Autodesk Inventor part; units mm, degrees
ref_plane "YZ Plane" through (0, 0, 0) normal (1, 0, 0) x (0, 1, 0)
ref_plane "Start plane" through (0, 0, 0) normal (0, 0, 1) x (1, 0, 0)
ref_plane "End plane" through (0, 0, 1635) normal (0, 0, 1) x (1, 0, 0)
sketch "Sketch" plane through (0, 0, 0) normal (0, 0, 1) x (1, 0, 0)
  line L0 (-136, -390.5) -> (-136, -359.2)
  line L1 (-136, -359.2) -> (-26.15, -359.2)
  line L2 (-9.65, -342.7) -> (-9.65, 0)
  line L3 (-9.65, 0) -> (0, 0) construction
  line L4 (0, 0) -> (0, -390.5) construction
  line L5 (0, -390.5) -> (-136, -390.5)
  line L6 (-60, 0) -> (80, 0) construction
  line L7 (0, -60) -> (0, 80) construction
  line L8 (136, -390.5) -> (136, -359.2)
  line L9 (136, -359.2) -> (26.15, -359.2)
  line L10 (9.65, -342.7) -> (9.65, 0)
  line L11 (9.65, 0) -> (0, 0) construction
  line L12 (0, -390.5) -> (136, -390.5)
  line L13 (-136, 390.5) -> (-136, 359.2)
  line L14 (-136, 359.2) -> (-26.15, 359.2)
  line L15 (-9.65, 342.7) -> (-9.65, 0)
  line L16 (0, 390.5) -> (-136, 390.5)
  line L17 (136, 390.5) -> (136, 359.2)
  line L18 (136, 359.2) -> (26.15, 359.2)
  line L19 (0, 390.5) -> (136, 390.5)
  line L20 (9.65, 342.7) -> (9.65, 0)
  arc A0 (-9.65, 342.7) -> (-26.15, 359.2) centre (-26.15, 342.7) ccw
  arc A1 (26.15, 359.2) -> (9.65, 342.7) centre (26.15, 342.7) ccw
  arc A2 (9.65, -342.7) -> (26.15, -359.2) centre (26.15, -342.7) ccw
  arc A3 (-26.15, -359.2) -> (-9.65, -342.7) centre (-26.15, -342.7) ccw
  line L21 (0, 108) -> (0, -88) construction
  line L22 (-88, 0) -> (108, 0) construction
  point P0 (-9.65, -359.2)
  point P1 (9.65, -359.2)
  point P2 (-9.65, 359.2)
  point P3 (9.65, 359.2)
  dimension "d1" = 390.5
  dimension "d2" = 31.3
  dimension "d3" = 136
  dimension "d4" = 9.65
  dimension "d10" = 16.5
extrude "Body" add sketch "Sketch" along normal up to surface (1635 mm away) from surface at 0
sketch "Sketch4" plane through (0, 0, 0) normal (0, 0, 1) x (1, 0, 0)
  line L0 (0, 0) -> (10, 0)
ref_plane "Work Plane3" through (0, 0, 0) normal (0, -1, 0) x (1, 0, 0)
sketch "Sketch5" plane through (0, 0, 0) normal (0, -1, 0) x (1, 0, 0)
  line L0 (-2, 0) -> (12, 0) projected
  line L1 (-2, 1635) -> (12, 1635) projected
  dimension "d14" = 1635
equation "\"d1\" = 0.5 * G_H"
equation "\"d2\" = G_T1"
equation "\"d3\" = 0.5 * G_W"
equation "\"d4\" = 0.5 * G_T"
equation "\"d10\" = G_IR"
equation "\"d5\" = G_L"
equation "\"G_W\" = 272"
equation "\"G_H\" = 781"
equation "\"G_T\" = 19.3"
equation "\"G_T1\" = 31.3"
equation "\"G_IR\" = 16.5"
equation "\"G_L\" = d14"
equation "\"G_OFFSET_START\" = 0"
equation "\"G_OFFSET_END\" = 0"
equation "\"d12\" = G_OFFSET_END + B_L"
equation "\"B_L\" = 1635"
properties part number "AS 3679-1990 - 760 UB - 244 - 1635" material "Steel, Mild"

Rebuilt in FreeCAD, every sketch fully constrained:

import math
import FreeCAD as App
import Part
import Sketcher
from FreeCAD import Vector

doc = App.newDocument("Part")
params = doc.addObject("Spreadsheet::Sheet", "Params")
for row, (alias, value) in enumerate([
    ("sketch1_radius", "16.5 mm"),
    ("sketch1_height", "31.3 mm"),
    ("pad1_length", "1635 mm"),
], start=1):
    params.set(f"A{row}", alias)
    params.set(f"B{row}", "=" + value)
    params.setAlias(f"B{row}", alias)

body = doc.addObject("PartDesign::Body", "Body")

# Sketch on XY plane
sketch1 = body.newObject("Sketcher::SketchObject", "Sketch")
sketch1.AttachmentSupport = (doc.getObject("XY_Plane"), [""])
sketch1.MapMode = "FlatFace"
sketch1.addGeometry(Part.LineSegment(Vector(-136, -359, 0), Vector(-136, -390, 0)), False)
sketch1.addGeometry(Part.LineSegment(Vector(-136, -390, 0), Vector(136, -390, 0)), False)
sketch1.addGeometry(Part.LineSegment(Vector(136, -390, 0), Vector(136, -359, 0)), False)
sketch1.addGeometry(Part.LineSegment(Vector(136, -359, 0), Vector(26, -359, 0)), False)
sketch1.addGeometry(Part.ArcOfCircle(Part.Circle(Vector(26, -343, 0), Vector(0, 0, 1), 16), math.radians(180), math.radians(270)), False)
sketch1.addGeometry(Part.LineSegment(Vector(10, -343, 0), Vector(10, 343, 0)), False)
sketch1.addGeometry(Part.ArcOfCircle(Part.Circle(Vector(26, 343, 0), Vector(0, 0, 1), 16), math.radians(90), math.radians(180)), False)
sketch1.addGeometry(Part.LineSegment(Vector(26, 359, 0), Vector(136, 359, 0)), False)
sketch1.addGeometry(Part.LineSegment(Vector(136, 359, 0), Vector(136, 390, 0)), False)
sketch1.addGeometry(Part.LineSegment(Vector(136, 390, 0), Vector(-136, 390, 0)), False)
sketch1.addGeometry(Part.LineSegment(Vector(-136, 390, 0), Vector(-136, 359, 0)), False)
sketch1.addGeometry(Part.LineSegment(Vector(-136, 359, 0), Vector(-26, 359, 0)), False)
sketch1.addGeometry(Part.ArcOfCircle(Part.Circle(Vector(-26, 343, 0), Vector(0, 0, 1), 16), math.radians(0), math.radians(90)), False)
sketch1.addGeometry(Part.LineSegment(Vector(-10, 343, 0), Vector(-10, -343, 0)), False)
sketch1.addGeometry(Part.ArcOfCircle(Part.Circle(Vector(-26, -343, 0), Vector(0, 0, 1), 16), math.radians(-90), math.radians(0)), False)
sketch1.addGeometry(Part.LineSegment(Vector(-26, -359, 0), Vector(-136, -359, 0)), False)
sketch1.addConstraint(Sketcher.Constraint("Coincident", 0, 2, 1, 1))
sketch1.addConstraint(Sketcher.Constraint("Coincident", 1, 2, 2, 1))
sketch1.addConstraint(Sketcher.Constraint("Coincident", 2, 2, 3, 1))
sketch1.addConstraint(Sketcher.Constraint("Tangent", 3, 2, 4, 2))
sketch1.addConstraint(Sketcher.Constraint("Tangent", 4, 1, 5, 1))
sketch1.addConstraint(Sketcher.Constraint("Tangent", 5, 2, 6, 2))
sketch1.addConstraint(Sketcher.Constraint("Tangent", 6, 1, 7, 1))
sketch1.addConstraint(Sketcher.Constraint("Coincident", 7, 2, 8, 1))
sketch1.addConstraint(Sketcher.Constraint("Coincident", 8, 2, 9, 1))
sketch1.addConstraint(Sketcher.Constraint("Coincident", 9, 2, 10, 1))
sketch1.addConstraint(Sketcher.Constraint("Coincident", 10, 2, 11, 1))
sketch1.addConstraint(Sketcher.Constraint("Tangent", 11, 2, 12, 2))
sketch1.addConstraint(Sketcher.Constraint("Tangent", 12, 1, 13, 1))
sketch1.addConstraint(Sketcher.Constraint("Tangent", 13, 2, 14, 2))
sketch1.addConstraint(Sketcher.Constraint("Tangent", 14, 1, 15, 1))
sketch1.addConstraint(Sketcher.Constraint("Coincident", 15, 2, 0, 1))
sketch1.addConstraint(Sketcher.Constraint("Vertical", 0))
sketch1.addConstraint(Sketcher.Constraint("Horizontal", 1))
sketch1.addConstraint(Sketcher.Constraint("Vertical", 2))
sketch1.addConstraint(Sketcher.Constraint("Horizontal", 3))
sketch1.addConstraint(Sketcher.Constraint("Vertical", 5))
sketch1.addConstraint(Sketcher.Constraint("Horizontal", 7))
sketch1.addConstraint(Sketcher.Constraint("Vertical", 8))
sketch1.addConstraint(Sketcher.Constraint("Horizontal", 9))
sketch1.addConstraint(Sketcher.Constraint("Vertical", 10))
sketch1.addConstraint(Sketcher.Constraint("Horizontal", 11))
sketch1.addConstraint(Sketcher.Constraint("Vertical", 13))
sketch1.addConstraint(Sketcher.Constraint("Horizontal", 15))
sketch1.addConstraint(Sketcher.Constraint("Equal", 4, 6))
sketch1.addConstraint(Sketcher.Constraint("Equal", 6, 12))
sketch1.addConstraint(Sketcher.Constraint("Equal", 12, 14))
sketch1.addConstraint(Sketcher.Constraint("Symmetric", 4, 3, 12, 3, -1, 1))
sketch1.addConstraint(Sketcher.Constraint("Symmetric", 0, 2, 8, 2, -1, 1))
sketch1.addConstraint(Sketcher.Constraint("Symmetric", 7, 2, 10, 2, -2))
sketch1.addConstraint(Sketcher.Constraint("Symmetric", 2, 2, 15, 2, -2))
sketch1.addConstraint(Sketcher.Constraint("Radius", 4, 16.5))
sketch1.addConstraint(Sketcher.Constraint("DistanceY", 0, 2, 0, 1, 31.3))
sketch1.addConstraint(Sketcher.Constraint("DistanceX", 0, 2, -1, 1, 136.0))
sketch1.addConstraint(Sketcher.Constraint("DistanceY", 0, 2, -1, 1, 390.5))
sketch1.addConstraint(Sketcher.Constraint("DistanceX", -1, 1, 4, 1, 9.65))
sketch1.setExpression("Constraints[35]", "Params.sketch1_radius")
sketch1.setExpression("Constraints[36]", "Params.sketch1_height")
pad1 = body.newObject("PartDesign::Pad", "Pad")
pad1.Profile = sketch1
pad1.setExpression("Length", "Params.pad1_length")

doc.recompute()
